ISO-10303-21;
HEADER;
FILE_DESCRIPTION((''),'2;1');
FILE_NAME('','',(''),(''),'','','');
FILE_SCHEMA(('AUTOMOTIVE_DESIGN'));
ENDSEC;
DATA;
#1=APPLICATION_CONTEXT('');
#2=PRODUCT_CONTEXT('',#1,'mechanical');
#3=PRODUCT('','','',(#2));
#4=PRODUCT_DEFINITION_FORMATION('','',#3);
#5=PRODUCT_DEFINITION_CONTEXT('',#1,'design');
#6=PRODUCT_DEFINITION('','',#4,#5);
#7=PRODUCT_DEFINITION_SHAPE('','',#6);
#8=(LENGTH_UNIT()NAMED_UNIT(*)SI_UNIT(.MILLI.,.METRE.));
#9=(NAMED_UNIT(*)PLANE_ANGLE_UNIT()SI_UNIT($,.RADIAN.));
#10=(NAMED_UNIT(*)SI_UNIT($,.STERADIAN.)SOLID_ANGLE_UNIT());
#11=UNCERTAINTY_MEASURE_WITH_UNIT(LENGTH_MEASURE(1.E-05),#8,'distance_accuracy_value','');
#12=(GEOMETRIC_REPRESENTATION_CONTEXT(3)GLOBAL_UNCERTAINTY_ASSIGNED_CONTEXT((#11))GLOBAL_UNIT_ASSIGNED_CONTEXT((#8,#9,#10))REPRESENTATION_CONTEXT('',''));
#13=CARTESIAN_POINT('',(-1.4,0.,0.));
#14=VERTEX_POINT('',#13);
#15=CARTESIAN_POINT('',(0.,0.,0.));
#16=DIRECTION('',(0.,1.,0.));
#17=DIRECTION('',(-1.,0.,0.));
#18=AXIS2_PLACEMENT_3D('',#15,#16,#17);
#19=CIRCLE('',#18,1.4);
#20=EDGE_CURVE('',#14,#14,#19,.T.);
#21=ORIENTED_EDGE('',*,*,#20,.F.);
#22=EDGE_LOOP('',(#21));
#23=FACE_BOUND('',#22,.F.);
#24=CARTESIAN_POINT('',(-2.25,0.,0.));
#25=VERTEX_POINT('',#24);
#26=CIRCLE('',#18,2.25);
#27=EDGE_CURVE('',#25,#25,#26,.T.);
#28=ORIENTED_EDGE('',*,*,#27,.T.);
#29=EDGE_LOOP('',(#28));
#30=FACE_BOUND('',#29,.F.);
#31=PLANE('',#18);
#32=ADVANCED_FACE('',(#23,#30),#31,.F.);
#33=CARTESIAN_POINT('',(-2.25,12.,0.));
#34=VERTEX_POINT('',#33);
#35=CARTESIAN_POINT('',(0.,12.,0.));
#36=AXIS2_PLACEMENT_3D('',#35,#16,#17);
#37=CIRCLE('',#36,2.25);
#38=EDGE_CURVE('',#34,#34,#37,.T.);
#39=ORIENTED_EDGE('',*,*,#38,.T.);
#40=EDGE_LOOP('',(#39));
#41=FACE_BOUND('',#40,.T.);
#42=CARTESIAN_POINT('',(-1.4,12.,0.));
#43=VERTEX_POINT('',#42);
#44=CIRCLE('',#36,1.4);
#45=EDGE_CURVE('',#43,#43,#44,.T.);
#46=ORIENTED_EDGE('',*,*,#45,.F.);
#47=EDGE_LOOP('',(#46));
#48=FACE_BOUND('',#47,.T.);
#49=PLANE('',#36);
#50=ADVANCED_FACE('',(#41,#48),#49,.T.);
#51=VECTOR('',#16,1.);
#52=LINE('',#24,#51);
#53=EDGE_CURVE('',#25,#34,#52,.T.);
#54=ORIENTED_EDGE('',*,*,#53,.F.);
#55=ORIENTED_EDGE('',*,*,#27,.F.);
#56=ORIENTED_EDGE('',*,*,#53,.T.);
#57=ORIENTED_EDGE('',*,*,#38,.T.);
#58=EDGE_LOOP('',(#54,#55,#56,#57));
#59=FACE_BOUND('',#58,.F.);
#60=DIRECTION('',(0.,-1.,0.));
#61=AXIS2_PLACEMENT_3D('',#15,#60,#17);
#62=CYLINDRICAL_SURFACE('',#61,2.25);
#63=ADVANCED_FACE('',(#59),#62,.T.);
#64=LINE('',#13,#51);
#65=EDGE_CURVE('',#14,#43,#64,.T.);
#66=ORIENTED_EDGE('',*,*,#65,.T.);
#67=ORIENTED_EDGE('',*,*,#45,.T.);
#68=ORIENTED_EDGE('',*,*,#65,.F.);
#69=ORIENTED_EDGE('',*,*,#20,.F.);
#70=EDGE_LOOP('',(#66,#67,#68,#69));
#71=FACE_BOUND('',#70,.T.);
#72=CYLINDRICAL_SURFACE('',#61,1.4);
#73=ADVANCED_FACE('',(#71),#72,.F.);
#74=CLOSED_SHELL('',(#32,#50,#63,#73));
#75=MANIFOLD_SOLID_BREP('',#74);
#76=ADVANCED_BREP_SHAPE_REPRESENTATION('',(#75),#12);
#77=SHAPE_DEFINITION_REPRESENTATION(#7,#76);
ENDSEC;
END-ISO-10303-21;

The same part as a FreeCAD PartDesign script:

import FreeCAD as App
import Part
import Sketcher

V = App.Vector
Q = App.Units.Quantity

doc = App.newDocument("Part")
body = doc.addObject("PartDesign::Body", "Body")

# Sketch on XZ plane
sketch1 = body.newObject("Sketcher::SketchObject", "Sketch")
sketch1.AttachmentSupport = (doc.getObject("XZ_Plane"), [""])
sketch1.MapMode = "FlatFace"
sketch1.addGeometry([
    Part.Circle(V(0, 0, 0), V(0, 0, 1), 2.25),
    Part.Circle(V(0, 0, 0), V(0, 0, 1), 1.4),
], False)
sketch1.addConstraint([
    Sketcher.Constraint("Coincident", 0, 3, -1, 1),
    Sketcher.Constraint("Coincident", 1, 3, -1, 1),
    Sketcher.Constraint("Diameter", 0, Q("4.5 mm")),
    Sketcher.Constraint("Diameter", 1, Q("2.8 mm")),
])
pad1 = body.newObject("PartDesign::Pad", "Pad")
pad1.Profile = sketch1
pad1.Length = 12
pad1.Reversed = True

doc.recompute()
